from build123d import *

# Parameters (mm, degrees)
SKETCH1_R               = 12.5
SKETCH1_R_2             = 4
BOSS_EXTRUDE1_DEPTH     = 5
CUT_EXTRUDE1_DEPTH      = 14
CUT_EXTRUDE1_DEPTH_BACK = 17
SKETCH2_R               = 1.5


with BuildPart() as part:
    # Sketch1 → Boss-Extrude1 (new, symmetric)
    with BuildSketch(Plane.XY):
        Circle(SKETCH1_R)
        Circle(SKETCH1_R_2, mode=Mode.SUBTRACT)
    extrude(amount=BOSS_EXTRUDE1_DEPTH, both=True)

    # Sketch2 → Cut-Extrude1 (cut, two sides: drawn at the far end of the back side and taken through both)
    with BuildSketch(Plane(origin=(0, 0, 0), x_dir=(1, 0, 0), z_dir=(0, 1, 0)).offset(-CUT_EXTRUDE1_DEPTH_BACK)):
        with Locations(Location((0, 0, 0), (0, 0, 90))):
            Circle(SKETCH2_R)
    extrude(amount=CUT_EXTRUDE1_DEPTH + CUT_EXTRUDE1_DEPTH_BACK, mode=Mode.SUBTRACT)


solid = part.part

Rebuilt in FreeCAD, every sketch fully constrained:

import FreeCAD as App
import Part
import Sketcher

V = App.Vector
Q = App.Units.Quantity

doc = App.newDocument("Part")
body = doc.addObject("PartDesign::Body", "Body")

sketch1 = body.newObject("Sketcher::SketchObject", "Sketch")
sketch1.AttachmentSupport = (doc.getObject("XY_Plane"), [""])
sketch1.MapMode = "FlatFace"
sketch1.addGeometry(Part.Circle(V(0, 0, 0), V(0, 0, 1), 12.5), False)
sketch1.addGeometry(Part.Circle(V(0, 0, 0), V(0, 0, 1), 4), False)
sketch1.addConstraint(Sketcher.Constraint("Coincident", 0, 3, -1, 1))
sketch1.addConstraint(Sketcher.Constraint("Coincident", 1, 3, -1, 1))
sketch1.addConstraint(Sketcher.Constraint("Diameter", 0, Q("25 mm")))
sketch1.addConstraint(Sketcher.Constraint("Diameter", 1, Q("8 mm")))
pad1 = body.newObject("PartDesign::Pad", "Pad")
pad1.Profile = sketch1
pad1.Length = 10
pad1.Midplane = True

sketch2 = body.newObject("Sketcher::SketchObject", "Sketch001")
sketch2.AttachmentSupport = (doc.getObject("XZ_Plane"), [""])
sketch2.MapMode = "FlatFace"
sketch2.addGeometry(Part.Circle(V(0, 0, 0), V(0, 0, 1), 1.5), False)
sketch2.addConstraint(Sketcher.Constraint("Coincident", 0, 3, -1, 1))
sketch2.addConstraint(Sketcher.Constraint("Diameter", 0, Q("3 mm")))
pocket1 = body.newObject("PartDesign::Pocket", "Pocket")
pocket1.Profile = sketch2
pocket1.Type = "ThroughAll"
pocket1.Midplane = True

doc.recompute()
